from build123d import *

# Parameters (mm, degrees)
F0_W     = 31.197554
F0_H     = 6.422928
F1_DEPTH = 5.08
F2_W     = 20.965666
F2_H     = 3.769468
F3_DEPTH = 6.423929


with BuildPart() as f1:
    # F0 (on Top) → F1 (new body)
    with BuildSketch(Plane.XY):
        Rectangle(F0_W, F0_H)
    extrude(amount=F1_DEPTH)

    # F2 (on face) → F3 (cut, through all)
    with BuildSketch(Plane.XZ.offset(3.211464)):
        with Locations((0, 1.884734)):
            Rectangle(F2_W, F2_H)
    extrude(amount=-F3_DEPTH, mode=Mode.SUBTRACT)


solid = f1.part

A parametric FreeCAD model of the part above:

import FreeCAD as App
import Part
import Sketcher
from FreeCAD import Vector
Q = App.Units.Quantity


def add_polygon(sketch, points):
    """Adds a closed chain of lines whose ends are joined by coincident constraints."""
    first, n = sketch.GeometryCount, len(points)
    for a, b in zip(points, points[1:] + points[:1]):
        sketch.addGeometry(Part.LineSegment(App.Vector(*a, 0), App.Vector(*b, 0)), False)
    for i in range(n):
        sketch.addConstraint(Sketcher.Constraint("Coincident", first + i, 2, first + (i + 1) % n, 1))

doc = App.newDocument("Part")
body = doc.addObject("PartDesign::Body", "Body")

# Sketch on XY plane
sketch1 = doc.addObject("Sketcher::SketchObject", "Sketch")
body.addObject(sketch1)
sketch1.AttachmentSupport = (doc.XY_Plane, [""])
sketch1.MapMode = "FlatFace"
add_polygon(sketch1, [(-16, 3), (-16, -3), (16, -3), (16, 3)])  # lines 0-3
sketch1.addConstraint(Sketcher.Constraint("Vertical", 0))
sketch1.addConstraint(Sketcher.Constraint("Horizontal", 1))
sketch1.addConstraint(Sketcher.Constraint("Vertical", 2))
sketch1.addConstraint(Sketcher.Constraint("Horizontal", 3))
sketch1.addConstraint(Sketcher.Constraint("Symmetric", 0, 2, 2, 2, -1, 1))
sketch1.addConstraint(Sketcher.Constraint("DistanceX", 1, 1, 1, 2, 31.197554))
sketch1.addConstraint(Sketcher.Constraint("DistanceY", 0, 2, 0, 1, 6.422928))
pad1 = doc.addObject("PartDesign::Pad", "Pad")
body.addObject(pad1)
pad1.Profile = sketch1
pad1.Length = Q("0.2 in")

# Sketch on XZ plane
sketch2 = doc.addObject("Sketcher::SketchObject", "Sketch001")
body.addObject(sketch2)
sketch2.AttachmentSupport = (doc.XZ_Plane, [""])
sketch2.MapMode = "FlatFace"
sketch2.AttachmentOffset = App.Placement(Vector(0, 0, 3.211464), App.Rotation())
add_polygon(sketch2, [(-10.5, 3.8), (-10.5, 0), (10.5, 0), (10.5, 3.8)])  # lines 0-3
sketch2.addConstraint(Sketcher.Constraint("Vertical", 0))
sketch2.addConstraint(Sketcher.Constraint("Horizontal", 1))
sketch2.addConstraint(Sketcher.Constraint("Vertical", 2))
sketch2.addConstraint(Sketcher.Constraint("Horizontal", 3))
sketch2.addConstraint(Sketcher.Constraint("Symmetric", 0, 2, 1, 2, -1, 1))
sketch2.addConstraint(Sketcher.Constraint("DistanceX", 1, 1, 1, 2, 20.965666))
sketch2.addConstraint(Sketcher.Constraint("DistanceY", 0, 2, 0, 1, 3.769468))
pocket1 = doc.addObject("PartDesign::Pocket", "Pocket")
body.addObject(pocket1)
pocket1.Profile = sketch2
pocket1.Type = "ThroughAll"

doc.recompute()
